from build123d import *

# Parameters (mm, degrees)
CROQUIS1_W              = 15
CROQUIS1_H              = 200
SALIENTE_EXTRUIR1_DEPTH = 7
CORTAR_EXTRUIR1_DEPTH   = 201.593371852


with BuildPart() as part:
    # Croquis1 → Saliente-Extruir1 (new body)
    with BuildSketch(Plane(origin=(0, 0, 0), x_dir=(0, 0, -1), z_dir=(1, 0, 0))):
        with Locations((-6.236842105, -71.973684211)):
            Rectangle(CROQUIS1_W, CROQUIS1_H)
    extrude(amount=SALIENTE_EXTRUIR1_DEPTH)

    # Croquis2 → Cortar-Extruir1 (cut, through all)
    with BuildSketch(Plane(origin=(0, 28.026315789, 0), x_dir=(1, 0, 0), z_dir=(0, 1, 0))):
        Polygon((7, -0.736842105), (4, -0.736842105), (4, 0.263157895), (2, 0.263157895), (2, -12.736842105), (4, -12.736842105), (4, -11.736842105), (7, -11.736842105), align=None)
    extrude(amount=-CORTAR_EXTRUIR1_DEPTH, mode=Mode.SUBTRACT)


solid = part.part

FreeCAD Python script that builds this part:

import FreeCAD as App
import Part
import Sketcher

V = App.Vector

doc = App.newDocument("Part")
body = doc.addObject("PartDesign::Body", "Body")

# Sketch on YZ plane
sketch1 = doc.addObject("Sketcher::SketchObject", "Sketch")
body.addObject(sketch1)
sketch1.AttachmentSupport = (doc.YZ_Plane, [""])
sketch1.MapMode = "FlatFace"
sketch1.addGeometry(Part.LineSegment(V(28.026316, 13.736842, 0), V(-171.973684, 13.736842, 0)), False)
sketch1.addGeometry(Part.LineSegment(V(-171.973684, 13.736842, 0), V(-171.973684, -1.263158, 0)), False)
sketch1.addGeometry(Part.LineSegment(V(-171.973684, -1.263158, 0), V(28.026316, -1.263158, 0)), False)
sketch1.addGeometry(Part.LineSegment(V(28.026316, -1.263158, 0), V(28.026316, 13.736842, 0)), False)
sketch1.addConstraint(Sketcher.Constraint("Coincident", 0, 2, 1, 1))
sketch1.addConstraint(Sketcher.Constraint("Coincident", 1, 2, 2, 1))
sketch1.addConstraint(Sketcher.Constraint("Coincident", 2, 2, 3, 1))
sketch1.addConstraint(Sketcher.Constraint("Coincident", 3, 2, 0, 1))
sketch1.addConstraint(Sketcher.Constraint("Horizontal", 0))
sketch1.addConstraint(Sketcher.Constraint("Vertical", 1))
sketch1.addConstraint(Sketcher.Constraint("Horizontal", 2))
sketch1.addConstraint(Sketcher.Constraint("Vertical", 3))
sketch1.addConstraint(Sketcher.Constraint("DistanceX", 0, 2, 0, 1, 200.0))
sketch1.addConstraint(Sketcher.Constraint("DistanceY", 1, 2, 1, 1, 15.0))
sketch1.addConstraint(Sketcher.Constraint("DistanceX", 0, 2, -1, 1, 171.973684))
sketch1.addConstraint(Sketcher.Constraint("DistanceY", -1, 1, 0, 2, 13.736842))
pad1 = doc.addObject("PartDesign::Pad", "Pad")
body.addObject(pad1)
pad1.Profile = sketch1
pad1.Length = 7

# Sketch on XZ plane
sketch2 = doc.addObject("Sketcher::SketchObject", "Sketch001")
body.addObject(sketch2)
sketch2.AttachmentSupport = (doc.XZ_Plane, [""])
sketch2.MapMode = "FlatFace"
sketch2.AttachmentOffset = App.Placement(V(0, 0, -28.026316), App.Rotation())
sketch2.addGeometry(Part.LineSegment(V(7, 0.736842, 0), V(4, 0.736842, 0)), False)
sketch2.addGeometry(Part.LineSegment(V(4, 0.736842, 0), V(4, -0.263158, 0)), False)
sketch2.addGeometry(Part.LineSegment(V(4, -0.263158, 0), V(2, -0.263158, 0)), False)
sketch2.addGeometry(Part.LineSegment(V(2, -0.263158, 0), V(2, 12.736842, 0)), False)
sketch2.addGeometry(Part.LineSegment(V(2, 12.736842, 0), V(4, 12.736842, 0)), False)
sketch2.addGeometry(Part.LineSegment(V(4, 12.736842, 0), V(4, 11.736842, 0)), False)
sketch2.addGeometry(Part.LineSegment(V(4, 11.736842, 0), V(7, 11.736842, 0)), False)
sketch2.addGeometry(Part.LineSegment(V(7, 11.736842, 0), V(7, 0.736842, 0)), False)
sketch2.addConstraint(Sketcher.Constraint("Coincident", 0, 2, 1, 1))
sketch2.addConstraint(Sketcher.Constraint("Coincident", 1, 2, 2, 1))
sketch2.addConstraint(Sketcher.Constraint("Coincident", 2, 2, 3, 1))
sketch2.addConstraint(Sketcher.Constraint("Coincident", 3, 2, 4, 1))
sketch2.addConstraint(Sketcher.Constraint("Coincident", 4, 2, 5, 1))
sketch2.addConstraint(Sketcher.Constraint("Coincident", 5, 2, 6, 1))
sketch2.addConstraint(Sketcher.Constraint("Coincident", 6, 2, 7, 1))
sketch2.addConstraint(Sketcher.Constraint("Coincident", 7, 2, 0, 1))
sketch2.addConstraint(Sketcher.Constraint("Horizontal", 0))
sketch2.addConstraint(Sketcher.Constraint("Vertical", 1))
sketch2.addConstraint(Sketcher.Constraint("Horizontal", 2))
sketch2.addConstraint(Sketcher.Constraint("Vertical", 3))
sketch2.addConstraint(Sketcher.Constraint("Horizontal", 4))
sketch2.addConstraint(Sketcher.Constraint("Vertical", 5))
sketch2.addConstraint(Sketcher.Constraint("Horizontal", 6))
sketch2.addConstraint(Sketcher.Constraint("Vertical", 7))
sketch2.addConstraint(Sketcher.Constraint("Vertical", 1, 2, 4, 2))
sketch2.addConstraint(Sketcher.Constraint("Equal", 1, 5))
sketch2.addConstraint(Sketcher.Constraint("DistanceX", 0, 2, 0, 1, 3.0))
sketch2.addConstraint(Sketcher.Constraint("DistanceX", 2, 2, 2, 1, 2.0))
sketch2.addConstraint(Sketcher.Constraint("DistanceY", 1, 2, 1, 1, 1.0))
sketch2.addConstraint(Sketcher.Constraint("DistanceY", 3, 1, 3, 2, 13.0))
sketch2.addConstraint(Sketcher.Constraint("DistanceX", -1, 1, 0, 2, 4.0))
sketch2.addConstraint(Sketcher.Constraint("DistanceY", -1, 1, 0, 2, 0.736842))
pocket1 = doc.addObject("PartDesign::Pocket", "Pocket")
body.addObject(pocket1)
pocket1.Profile = sketch2
pocket1.Type = "ThroughAll"
pocket1.Reversed = True

doc.recompute()
